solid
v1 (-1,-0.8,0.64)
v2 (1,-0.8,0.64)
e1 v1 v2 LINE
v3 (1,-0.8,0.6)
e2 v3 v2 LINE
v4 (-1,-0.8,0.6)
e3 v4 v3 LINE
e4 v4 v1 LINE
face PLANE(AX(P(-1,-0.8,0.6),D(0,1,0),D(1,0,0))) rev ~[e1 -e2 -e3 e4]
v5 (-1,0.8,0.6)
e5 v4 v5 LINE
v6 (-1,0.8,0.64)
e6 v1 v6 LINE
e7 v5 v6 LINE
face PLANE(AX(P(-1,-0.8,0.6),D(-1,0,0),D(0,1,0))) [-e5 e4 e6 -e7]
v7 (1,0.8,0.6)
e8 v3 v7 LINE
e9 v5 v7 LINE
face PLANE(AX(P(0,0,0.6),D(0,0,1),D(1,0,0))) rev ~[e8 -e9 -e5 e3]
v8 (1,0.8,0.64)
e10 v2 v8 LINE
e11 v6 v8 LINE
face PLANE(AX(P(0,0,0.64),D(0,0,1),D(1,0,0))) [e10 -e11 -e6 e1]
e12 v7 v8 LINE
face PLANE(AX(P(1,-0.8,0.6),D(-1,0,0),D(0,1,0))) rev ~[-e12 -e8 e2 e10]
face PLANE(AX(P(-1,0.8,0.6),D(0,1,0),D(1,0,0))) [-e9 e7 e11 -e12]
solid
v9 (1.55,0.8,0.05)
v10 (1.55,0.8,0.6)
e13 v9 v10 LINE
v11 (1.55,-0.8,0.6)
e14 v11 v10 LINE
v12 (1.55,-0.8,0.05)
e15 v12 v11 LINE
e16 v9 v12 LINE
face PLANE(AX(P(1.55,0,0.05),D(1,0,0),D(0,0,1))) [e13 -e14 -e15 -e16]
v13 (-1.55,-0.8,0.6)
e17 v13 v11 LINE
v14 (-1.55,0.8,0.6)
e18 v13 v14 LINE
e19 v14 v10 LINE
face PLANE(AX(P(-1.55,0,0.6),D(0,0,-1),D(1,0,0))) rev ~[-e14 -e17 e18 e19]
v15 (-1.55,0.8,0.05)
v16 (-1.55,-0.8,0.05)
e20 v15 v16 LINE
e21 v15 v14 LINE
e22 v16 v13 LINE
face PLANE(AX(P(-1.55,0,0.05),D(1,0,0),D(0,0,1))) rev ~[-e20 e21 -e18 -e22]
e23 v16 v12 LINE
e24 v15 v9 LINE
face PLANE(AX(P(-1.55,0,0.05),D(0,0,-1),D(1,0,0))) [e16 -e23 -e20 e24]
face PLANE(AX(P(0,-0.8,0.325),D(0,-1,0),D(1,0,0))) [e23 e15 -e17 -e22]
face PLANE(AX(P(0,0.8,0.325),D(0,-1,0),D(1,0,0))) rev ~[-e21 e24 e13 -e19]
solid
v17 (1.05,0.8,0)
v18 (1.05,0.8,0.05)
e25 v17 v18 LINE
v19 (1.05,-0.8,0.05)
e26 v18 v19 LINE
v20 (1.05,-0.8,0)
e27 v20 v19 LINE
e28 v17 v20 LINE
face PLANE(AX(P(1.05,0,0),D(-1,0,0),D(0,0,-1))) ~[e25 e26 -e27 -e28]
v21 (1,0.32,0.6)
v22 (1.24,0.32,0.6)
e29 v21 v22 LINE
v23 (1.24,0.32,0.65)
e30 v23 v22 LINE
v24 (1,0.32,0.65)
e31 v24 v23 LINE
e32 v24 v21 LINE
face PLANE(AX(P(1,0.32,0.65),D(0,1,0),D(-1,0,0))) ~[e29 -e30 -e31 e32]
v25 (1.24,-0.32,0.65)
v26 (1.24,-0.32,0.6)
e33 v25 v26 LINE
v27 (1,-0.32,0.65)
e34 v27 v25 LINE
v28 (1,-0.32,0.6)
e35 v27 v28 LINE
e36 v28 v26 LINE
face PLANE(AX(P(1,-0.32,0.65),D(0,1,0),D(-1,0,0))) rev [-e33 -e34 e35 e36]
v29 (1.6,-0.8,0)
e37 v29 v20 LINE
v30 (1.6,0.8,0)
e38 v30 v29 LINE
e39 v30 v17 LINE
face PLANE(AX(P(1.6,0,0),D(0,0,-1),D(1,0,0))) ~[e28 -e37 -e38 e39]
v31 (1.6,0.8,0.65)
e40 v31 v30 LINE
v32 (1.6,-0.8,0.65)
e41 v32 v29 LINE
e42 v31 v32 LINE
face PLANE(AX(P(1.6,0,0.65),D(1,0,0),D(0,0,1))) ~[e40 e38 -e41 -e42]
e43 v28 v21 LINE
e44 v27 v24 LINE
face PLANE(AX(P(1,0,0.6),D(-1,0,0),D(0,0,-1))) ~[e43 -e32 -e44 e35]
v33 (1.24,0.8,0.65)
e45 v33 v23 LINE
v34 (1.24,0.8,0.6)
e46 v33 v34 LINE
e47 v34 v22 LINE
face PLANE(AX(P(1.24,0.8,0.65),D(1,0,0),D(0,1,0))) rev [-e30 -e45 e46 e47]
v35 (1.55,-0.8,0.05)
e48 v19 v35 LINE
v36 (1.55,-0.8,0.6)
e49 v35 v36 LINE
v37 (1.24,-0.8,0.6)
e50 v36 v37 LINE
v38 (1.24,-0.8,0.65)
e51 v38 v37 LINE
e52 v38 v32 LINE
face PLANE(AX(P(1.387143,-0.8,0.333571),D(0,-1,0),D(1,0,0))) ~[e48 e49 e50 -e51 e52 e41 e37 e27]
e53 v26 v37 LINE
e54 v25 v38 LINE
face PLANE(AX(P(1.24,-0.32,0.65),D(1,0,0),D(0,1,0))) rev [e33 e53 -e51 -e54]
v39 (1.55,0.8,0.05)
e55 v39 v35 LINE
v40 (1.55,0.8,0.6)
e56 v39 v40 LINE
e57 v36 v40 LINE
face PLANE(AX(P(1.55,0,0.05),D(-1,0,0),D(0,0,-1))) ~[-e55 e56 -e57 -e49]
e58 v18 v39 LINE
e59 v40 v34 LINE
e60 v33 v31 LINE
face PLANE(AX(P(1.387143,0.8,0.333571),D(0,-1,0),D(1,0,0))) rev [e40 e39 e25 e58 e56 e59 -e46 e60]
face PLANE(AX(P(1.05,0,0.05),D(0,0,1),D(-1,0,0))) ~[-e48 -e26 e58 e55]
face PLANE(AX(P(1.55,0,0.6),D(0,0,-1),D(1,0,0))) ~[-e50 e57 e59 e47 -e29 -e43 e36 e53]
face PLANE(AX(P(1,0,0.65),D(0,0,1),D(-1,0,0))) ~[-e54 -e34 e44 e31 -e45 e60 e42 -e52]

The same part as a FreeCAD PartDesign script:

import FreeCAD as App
import Part
import Sketcher
from FreeCAD import Vector
Q = App.Units.Quantity

doc = App.newDocument("Part")
body = doc.addObject("PartDesign::Body", "Body")

# Sketch on XZ plane
sketch1 = doc.addObject("Sketcher::SketchObject", "Sketch")
body.addObject(sketch1)
sketch1.AttachmentSupport = (doc.XZ_Plane, [""])
sketch1.MapMode = "FlatFace"
sketch1.addGeometry(Part.LineSegment(Vector(-1, 0.65, 0), Vector(-1.6, 0.65, 0)), False)
sketch1.addGeometry(Part.LineSegment(Vector(-1.6, 0.65, 0), Vector(-1.6, 0, 0)), False)
sketch1.addGeometry(Part.LineSegment(Vector(-1.6, 0, 0), Vector(-1.05, 0, 0)), False)
sketch1.addGeometry(Part.LineSegment(Vector(-1.05, 0, 0), Vector(-1.05, 0.05, 0)), False)
sketch1.addGeometry(Part.LineSegment(Vector(-1.05, 0.05, 0), Vector(-1.55, 0.05, 0)), False)
sketch1.addGeometry(Part.LineSegment(Vector(-1.55, 0.05, 0), Vector(-1.55, 0.6, 0)), False)
sketch1.addGeometry(Part.LineSegment(Vector(-1.55, 0.6, 0), Vector(-1, 0.6, 0)), False)
sketch1.addGeometry(Part.LineSegment(Vector(-1, 0.6, 0), Vector(-1, 0.65, 0)), False)
sketch1.addConstraint(Sketcher.Constraint("Coincident", 0, 2, 1, 1))
sketch1.addConstraint(Sketcher.Constraint("Coincident", 1, 2, 2, 1))
sketch1.addConstraint(Sketcher.Constraint("Coincident", 2, 2, 3, 1))
sketch1.addConstraint(Sketcher.Constraint("Coincident", 3, 2, 4, 1))
sketch1.addConstraint(Sketcher.Constraint("Coincident", 4, 2, 5, 1))
sketch1.addConstraint(Sketcher.Constraint("Coincident", 5, 2, 6, 1))
sketch1.addConstraint(Sketcher.Constraint("Coincident", 6, 2, 7, 1))
sketch1.addConstraint(Sketcher.Constraint("Coincident", 7, 2, 0, 1))
sketch1.addConstraint(Sketcher.Constraint("Horizontal", 0))
sketch1.addConstraint(Sketcher.Constraint("Vertical", 1))
sketch1.addConstraint(Sketcher.Constraint("Horizontal", 2))
sketch1.addConstraint(Sketcher.Constraint("Vertical", 3))
sketch1.addConstraint(Sketcher.Constraint("Horizontal", 4))
sketch1.addConstraint(Sketcher.Constraint("Vertical", 5))
sketch1.addConstraint(Sketcher.Constraint("Horizontal", 6))
sketch1.addConstraint(Sketcher.Constraint("Vertical", 7))
sketch1.addConstraint(Sketcher.Constraint("PointOnObject", 1, 2, -1))
sketch1.addConstraint(Sketcher.Constraint("Equal", 2, 6))
sketch1.addConstraint(Sketcher.Constraint("Equal", 6, 5))
sketch1.addConstraint(Sketcher.Constraint("Equal", 3, 7))
sketch1.addConstraint(Sketcher.Constraint("DistanceX", 0, 2, 0, 1, Q("0.6 mm")))
sketch1.addConstraint(Sketcher.Constraint("DistanceX", 4, 2, 4, 1, Q("0.5 mm")))
sketch1.addConstraint(Sketcher.Constraint("DistanceX", 6, 2, -1, 1, Q("1 mm")))
sketch1.addConstraint(Sketcher.Constraint("DistanceY", 1, 2, 1, 1, Q("0.65 mm")))
pad1 = doc.addObject("PartDesign::Pad", "Pad")
body.addObject(pad1)
pad1.Profile = sketch1
pad1.Length = 1.6
pad1.Midplane = True

# Sketch on XY plane
sketch2 = doc.addObject("Sketcher::SketchObject", "Sketch001")
body.addObject(sketch2)
sketch2.AttachmentSupport = (doc.XY_Plane, [""])
sketch2.MapMode = "FlatFace"
sketch2.AttachmentOffset = App.Placement(Vector(0, 0, 0.65), App.Rotation())
sketch2.addGeometry(Part.LineSegment(Vector(-1, 0.32, 0), Vector(-1, 0.8, 0)), False)
sketch2.addGeometry(Part.LineSegment(Vector(-1, 0.8, 0), Vector(-1.24, 0.8, 0)), False)
sketch2.addGeometry(Part.LineSegment(Vector(-1.24, 0.8, 0), Vector(-1.24, 0.32, 0)), False)
sketch2.addGeometry(Part.LineSegment(Vector(-1.24, 0.32, 0), Vector(-1, 0.32, 0)), False)
sketch2.addGeometry(Part.LineSegment(Vector(-1, -0.8, 0), Vector(-1, -0.32, 0)), False)
sketch2.addGeometry(Part.LineSegment(Vector(-1, -0.32, 0), Vector(-1.24, -0.32, 0)), False)
sketch2.addGeometry(Part.LineSegment(Vector(-1.24, -0.32, 0), Vector(-1.24, -0.8, 0)), False)
sketch2.addGeometry(Part.LineSegment(Vector(-1.24, -0.8, 0), Vector(-1, -0.8, 0)), False)
sketch2.addConstraint(Sketcher.Constraint("Coincident", 0, 2, 1, 1))
sketch2.addConstraint(Sketcher.Constraint("Coincident", 1, 2, 2, 1))
sketch2.addConstraint(Sketcher.Constraint("Coincident", 2, 2, 3, 1))
sketch2.addConstraint(Sketcher.Constraint("Coincident", 3, 2, 0, 1))
sketch2.addConstraint(Sketcher.Constraint("Coincident", 4, 2, 5, 1))
sketch2.addConstraint(Sketcher.Constraint("Coincident", 5, 2, 6, 1))
sketch2.addConstraint(Sketcher.Constraint("Coincident", 6, 2, 7, 1))
sketch2.addConstraint(Sketcher.Constraint("Coincident", 7, 2, 4, 1))
sketch2.addConstraint(Sketcher.Constraint("Vertical", 0))
sketch2.addConstraint(Sketcher.Constraint("Horizontal", 1))
sketch2.addConstraint(Sketcher.Constraint("Vertical", 2))
sketch2.addConstraint(Sketcher.Constraint("Horizontal", 3))
sketch2.addConstraint(Sketcher.Constraint("Vertical", 4))
sketch2.addConstraint(Sketcher.Constraint("Horizontal", 5))
sketch2.addConstraint(Sketcher.Constraint("Vertical", 6))
sketch2.addConstraint(Sketcher.Constraint("Horizontal", 7))
sketch2.addConstraint(Sketcher.Constraint("Symmetric", 3, 2, 4, 2, -1))
sketch2.addConstraint(Sketcher.Constraint("Symmetric", 1, 2, 6, 2, -1))
sketch2.addConstraint(Sketcher.Constraint("DistanceX", 0, 2, -1, 1, Q("1 mm")))
sketch2.addConstraint(Sketcher.Constraint("DistanceX", 1, 2, 1, 1, Q("0.24 mm")))
sketch2.addConstraint(Sketcher.Constraint("DistanceY", 0, 1, 0, 2, Q("0.48 mm")))
sketch2.addConstraint(Sketcher.Constraint("DistanceY", -1, 1, 0, 2, Q("0.8 mm")))
pocket1 = doc.addObject("PartDesign::Pocket", "Pocket")
body.addObject(pocket1)
pocket1.Profile = sketch2
pocket1.Length = 0.05
body2 = doc.addObject("PartDesign::Body", "Body001")
doc.recompute()

mirroring = doc.addObject("Part::Mirroring", "Mirroring")
mirroring.Source = body
mirroring.Base = Vector(0, 0, 0)
mirroring.Normal = Vector(1, 0, 0)
body2.BaseFeature = mirroring
doc.recompute()
body3 = doc.addObject("PartDesign::Body", "Body002")

# Sketch on XZ plane
sketch3 = doc.addObject("Sketcher::SketchObject", "Sketch002")
body3.addObject(sketch3)
sketch3.AttachmentSupport = (doc.getObject("XZ_Plane002"), [""])
sketch3.MapMode = "FlatFace"
sketch3.addGeometry(Part.LineSegment(Vector(-1.6, 0.6, 0), Vector(-1.6, 0.1, 0)), False)
sketch3.addGeometry(Part.LineSegment(Vector(-1.6, 0.1, 0), Vector(1.6, 0.1, 0)), False)
sketch3.addGeometry(Part.LineSegment(Vector(1.6, 0.1, 0), Vector(1.6, 0.6, 0)), False)
sketch3.addGeometry(Part.LineSegment(Vector(1.6, 0.6, 0), Vector(-1.6, 0.6, 0)), False)
sketch3.addConstraint(Sketcher.Constraint("Coincident", 0, 2, 1, 1))
sketch3.addConstraint(Sketcher.Constraint("Coincident", 1, 2, 2, 1))
sketch3.addConstraint(Sketcher.Constraint("Coincident", 2, 2, 3, 1))
sketch3.addConstraint(Sketcher.Constraint("Coincident", 3, 2, 0, 1))
sketch3.addConstraint(Sketcher.Constraint("Vertical", 0))
sketch3.addConstraint(Sketcher.Constraint("Horizontal", 1))
sketch3.addConstraint(Sketcher.Constraint("Vertical", 2))
sketch3.addConstraint(Sketcher.Constraint("Horizontal", 3))
sketch3.addConstraint(Sketcher.Constraint("DistanceX", 1, 1, 1, 2, Q("3.1 mm")))
sketch3.addConstraint(Sketcher.Constraint("DistanceY", 0, 2, 0, 1, Q("0.55 mm")))
sketch3.addConstraint(Sketcher.Constraint("DistanceY", -1, 1, 2, 2, Q("0.6 mm")))
sketch3.addConstraint(Sketcher.Constraint("DistanceX", 0, 2, -1, 1, Q("1.55 mm")))
pad2 = doc.addObject("PartDesign::Pad", "Pad001")
body3.addObject(pad2)
pad2.Profile = sketch3
pad2.Length = 1.6
pad2.Midplane = True
body4 = doc.addObject("PartDesign::Body", "Body003")

# Sketch on XY plane
sketch4 = doc.addObject("Sketcher::SketchObject", "Sketch003")
body4.addObject(sketch4)
sketch4.AttachmentSupport = (doc.getObject("XY_Plane003"), [""])
sketch4.MapMode = "FlatFace"
sketch4.AttachmentOffset = App.Placement(Vector(0, 0, 0.6), App.Rotation())
sketch4.addGeometry(Part.LineSegment(Vector(-1, 0.8, 0), Vector(-1, -0.8, 0)), False)
sketch4.addGeometry(Part.LineSegment(Vector(-1, -0.8, 0), Vector(1, -0.8, 0)), False)
sketch4.addGeometry(Part.LineSegment(Vector(1, -0.8, 0), Vector(1, 0.8, 0)), False)
sketch4.addGeometry(Part.LineSegment(Vector(1, 0.8, 0), Vector(-1, 0.8, 0)), False)
sketch4.addConstraint(Sketcher.Constraint("Coincident", 0, 2, 1, 1))
sketch4.addConstraint(Sketcher.Constraint("Coincident", 1, 2, 2, 1))
sketch4.addConstraint(Sketcher.Constraint("Coincident", 2, 2, 3, 1))
sketch4.addConstraint(Sketcher.Constraint("Coincident", 3, 2, 0, 1))
sketch4.addConstraint(Sketcher.Constraint("Vertical", 0))
sketch4.addConstraint(Sketcher.Constraint("Horizontal", 1))
sketch4.addConstraint(Sketcher.Constraint("Vertical", 2))
sketch4.addConstraint(Sketcher.Constraint("Horizontal", 3))
sketch4.addConstraint(Sketcher.Constraint("Symmetric", 0, 2, 2, 2, -1, 1))
sketch4.addConstraint(Sketcher.Constraint("DistanceX", 1, 1, 1, 2, Q("2 mm")))
sketch4.addConstraint(Sketcher.Constraint("DistanceY", 0, 2, 0, 1, Q("1.6 mm")))
pad3 = doc.addObject("PartDesign::Pad", "Pad002")
body4.addObject(pad3)
pad3.Profile = sketch4
pad3.Length = 0.04
body.Visibility = False
mirroring.Visibility = False

doc.recompute()
